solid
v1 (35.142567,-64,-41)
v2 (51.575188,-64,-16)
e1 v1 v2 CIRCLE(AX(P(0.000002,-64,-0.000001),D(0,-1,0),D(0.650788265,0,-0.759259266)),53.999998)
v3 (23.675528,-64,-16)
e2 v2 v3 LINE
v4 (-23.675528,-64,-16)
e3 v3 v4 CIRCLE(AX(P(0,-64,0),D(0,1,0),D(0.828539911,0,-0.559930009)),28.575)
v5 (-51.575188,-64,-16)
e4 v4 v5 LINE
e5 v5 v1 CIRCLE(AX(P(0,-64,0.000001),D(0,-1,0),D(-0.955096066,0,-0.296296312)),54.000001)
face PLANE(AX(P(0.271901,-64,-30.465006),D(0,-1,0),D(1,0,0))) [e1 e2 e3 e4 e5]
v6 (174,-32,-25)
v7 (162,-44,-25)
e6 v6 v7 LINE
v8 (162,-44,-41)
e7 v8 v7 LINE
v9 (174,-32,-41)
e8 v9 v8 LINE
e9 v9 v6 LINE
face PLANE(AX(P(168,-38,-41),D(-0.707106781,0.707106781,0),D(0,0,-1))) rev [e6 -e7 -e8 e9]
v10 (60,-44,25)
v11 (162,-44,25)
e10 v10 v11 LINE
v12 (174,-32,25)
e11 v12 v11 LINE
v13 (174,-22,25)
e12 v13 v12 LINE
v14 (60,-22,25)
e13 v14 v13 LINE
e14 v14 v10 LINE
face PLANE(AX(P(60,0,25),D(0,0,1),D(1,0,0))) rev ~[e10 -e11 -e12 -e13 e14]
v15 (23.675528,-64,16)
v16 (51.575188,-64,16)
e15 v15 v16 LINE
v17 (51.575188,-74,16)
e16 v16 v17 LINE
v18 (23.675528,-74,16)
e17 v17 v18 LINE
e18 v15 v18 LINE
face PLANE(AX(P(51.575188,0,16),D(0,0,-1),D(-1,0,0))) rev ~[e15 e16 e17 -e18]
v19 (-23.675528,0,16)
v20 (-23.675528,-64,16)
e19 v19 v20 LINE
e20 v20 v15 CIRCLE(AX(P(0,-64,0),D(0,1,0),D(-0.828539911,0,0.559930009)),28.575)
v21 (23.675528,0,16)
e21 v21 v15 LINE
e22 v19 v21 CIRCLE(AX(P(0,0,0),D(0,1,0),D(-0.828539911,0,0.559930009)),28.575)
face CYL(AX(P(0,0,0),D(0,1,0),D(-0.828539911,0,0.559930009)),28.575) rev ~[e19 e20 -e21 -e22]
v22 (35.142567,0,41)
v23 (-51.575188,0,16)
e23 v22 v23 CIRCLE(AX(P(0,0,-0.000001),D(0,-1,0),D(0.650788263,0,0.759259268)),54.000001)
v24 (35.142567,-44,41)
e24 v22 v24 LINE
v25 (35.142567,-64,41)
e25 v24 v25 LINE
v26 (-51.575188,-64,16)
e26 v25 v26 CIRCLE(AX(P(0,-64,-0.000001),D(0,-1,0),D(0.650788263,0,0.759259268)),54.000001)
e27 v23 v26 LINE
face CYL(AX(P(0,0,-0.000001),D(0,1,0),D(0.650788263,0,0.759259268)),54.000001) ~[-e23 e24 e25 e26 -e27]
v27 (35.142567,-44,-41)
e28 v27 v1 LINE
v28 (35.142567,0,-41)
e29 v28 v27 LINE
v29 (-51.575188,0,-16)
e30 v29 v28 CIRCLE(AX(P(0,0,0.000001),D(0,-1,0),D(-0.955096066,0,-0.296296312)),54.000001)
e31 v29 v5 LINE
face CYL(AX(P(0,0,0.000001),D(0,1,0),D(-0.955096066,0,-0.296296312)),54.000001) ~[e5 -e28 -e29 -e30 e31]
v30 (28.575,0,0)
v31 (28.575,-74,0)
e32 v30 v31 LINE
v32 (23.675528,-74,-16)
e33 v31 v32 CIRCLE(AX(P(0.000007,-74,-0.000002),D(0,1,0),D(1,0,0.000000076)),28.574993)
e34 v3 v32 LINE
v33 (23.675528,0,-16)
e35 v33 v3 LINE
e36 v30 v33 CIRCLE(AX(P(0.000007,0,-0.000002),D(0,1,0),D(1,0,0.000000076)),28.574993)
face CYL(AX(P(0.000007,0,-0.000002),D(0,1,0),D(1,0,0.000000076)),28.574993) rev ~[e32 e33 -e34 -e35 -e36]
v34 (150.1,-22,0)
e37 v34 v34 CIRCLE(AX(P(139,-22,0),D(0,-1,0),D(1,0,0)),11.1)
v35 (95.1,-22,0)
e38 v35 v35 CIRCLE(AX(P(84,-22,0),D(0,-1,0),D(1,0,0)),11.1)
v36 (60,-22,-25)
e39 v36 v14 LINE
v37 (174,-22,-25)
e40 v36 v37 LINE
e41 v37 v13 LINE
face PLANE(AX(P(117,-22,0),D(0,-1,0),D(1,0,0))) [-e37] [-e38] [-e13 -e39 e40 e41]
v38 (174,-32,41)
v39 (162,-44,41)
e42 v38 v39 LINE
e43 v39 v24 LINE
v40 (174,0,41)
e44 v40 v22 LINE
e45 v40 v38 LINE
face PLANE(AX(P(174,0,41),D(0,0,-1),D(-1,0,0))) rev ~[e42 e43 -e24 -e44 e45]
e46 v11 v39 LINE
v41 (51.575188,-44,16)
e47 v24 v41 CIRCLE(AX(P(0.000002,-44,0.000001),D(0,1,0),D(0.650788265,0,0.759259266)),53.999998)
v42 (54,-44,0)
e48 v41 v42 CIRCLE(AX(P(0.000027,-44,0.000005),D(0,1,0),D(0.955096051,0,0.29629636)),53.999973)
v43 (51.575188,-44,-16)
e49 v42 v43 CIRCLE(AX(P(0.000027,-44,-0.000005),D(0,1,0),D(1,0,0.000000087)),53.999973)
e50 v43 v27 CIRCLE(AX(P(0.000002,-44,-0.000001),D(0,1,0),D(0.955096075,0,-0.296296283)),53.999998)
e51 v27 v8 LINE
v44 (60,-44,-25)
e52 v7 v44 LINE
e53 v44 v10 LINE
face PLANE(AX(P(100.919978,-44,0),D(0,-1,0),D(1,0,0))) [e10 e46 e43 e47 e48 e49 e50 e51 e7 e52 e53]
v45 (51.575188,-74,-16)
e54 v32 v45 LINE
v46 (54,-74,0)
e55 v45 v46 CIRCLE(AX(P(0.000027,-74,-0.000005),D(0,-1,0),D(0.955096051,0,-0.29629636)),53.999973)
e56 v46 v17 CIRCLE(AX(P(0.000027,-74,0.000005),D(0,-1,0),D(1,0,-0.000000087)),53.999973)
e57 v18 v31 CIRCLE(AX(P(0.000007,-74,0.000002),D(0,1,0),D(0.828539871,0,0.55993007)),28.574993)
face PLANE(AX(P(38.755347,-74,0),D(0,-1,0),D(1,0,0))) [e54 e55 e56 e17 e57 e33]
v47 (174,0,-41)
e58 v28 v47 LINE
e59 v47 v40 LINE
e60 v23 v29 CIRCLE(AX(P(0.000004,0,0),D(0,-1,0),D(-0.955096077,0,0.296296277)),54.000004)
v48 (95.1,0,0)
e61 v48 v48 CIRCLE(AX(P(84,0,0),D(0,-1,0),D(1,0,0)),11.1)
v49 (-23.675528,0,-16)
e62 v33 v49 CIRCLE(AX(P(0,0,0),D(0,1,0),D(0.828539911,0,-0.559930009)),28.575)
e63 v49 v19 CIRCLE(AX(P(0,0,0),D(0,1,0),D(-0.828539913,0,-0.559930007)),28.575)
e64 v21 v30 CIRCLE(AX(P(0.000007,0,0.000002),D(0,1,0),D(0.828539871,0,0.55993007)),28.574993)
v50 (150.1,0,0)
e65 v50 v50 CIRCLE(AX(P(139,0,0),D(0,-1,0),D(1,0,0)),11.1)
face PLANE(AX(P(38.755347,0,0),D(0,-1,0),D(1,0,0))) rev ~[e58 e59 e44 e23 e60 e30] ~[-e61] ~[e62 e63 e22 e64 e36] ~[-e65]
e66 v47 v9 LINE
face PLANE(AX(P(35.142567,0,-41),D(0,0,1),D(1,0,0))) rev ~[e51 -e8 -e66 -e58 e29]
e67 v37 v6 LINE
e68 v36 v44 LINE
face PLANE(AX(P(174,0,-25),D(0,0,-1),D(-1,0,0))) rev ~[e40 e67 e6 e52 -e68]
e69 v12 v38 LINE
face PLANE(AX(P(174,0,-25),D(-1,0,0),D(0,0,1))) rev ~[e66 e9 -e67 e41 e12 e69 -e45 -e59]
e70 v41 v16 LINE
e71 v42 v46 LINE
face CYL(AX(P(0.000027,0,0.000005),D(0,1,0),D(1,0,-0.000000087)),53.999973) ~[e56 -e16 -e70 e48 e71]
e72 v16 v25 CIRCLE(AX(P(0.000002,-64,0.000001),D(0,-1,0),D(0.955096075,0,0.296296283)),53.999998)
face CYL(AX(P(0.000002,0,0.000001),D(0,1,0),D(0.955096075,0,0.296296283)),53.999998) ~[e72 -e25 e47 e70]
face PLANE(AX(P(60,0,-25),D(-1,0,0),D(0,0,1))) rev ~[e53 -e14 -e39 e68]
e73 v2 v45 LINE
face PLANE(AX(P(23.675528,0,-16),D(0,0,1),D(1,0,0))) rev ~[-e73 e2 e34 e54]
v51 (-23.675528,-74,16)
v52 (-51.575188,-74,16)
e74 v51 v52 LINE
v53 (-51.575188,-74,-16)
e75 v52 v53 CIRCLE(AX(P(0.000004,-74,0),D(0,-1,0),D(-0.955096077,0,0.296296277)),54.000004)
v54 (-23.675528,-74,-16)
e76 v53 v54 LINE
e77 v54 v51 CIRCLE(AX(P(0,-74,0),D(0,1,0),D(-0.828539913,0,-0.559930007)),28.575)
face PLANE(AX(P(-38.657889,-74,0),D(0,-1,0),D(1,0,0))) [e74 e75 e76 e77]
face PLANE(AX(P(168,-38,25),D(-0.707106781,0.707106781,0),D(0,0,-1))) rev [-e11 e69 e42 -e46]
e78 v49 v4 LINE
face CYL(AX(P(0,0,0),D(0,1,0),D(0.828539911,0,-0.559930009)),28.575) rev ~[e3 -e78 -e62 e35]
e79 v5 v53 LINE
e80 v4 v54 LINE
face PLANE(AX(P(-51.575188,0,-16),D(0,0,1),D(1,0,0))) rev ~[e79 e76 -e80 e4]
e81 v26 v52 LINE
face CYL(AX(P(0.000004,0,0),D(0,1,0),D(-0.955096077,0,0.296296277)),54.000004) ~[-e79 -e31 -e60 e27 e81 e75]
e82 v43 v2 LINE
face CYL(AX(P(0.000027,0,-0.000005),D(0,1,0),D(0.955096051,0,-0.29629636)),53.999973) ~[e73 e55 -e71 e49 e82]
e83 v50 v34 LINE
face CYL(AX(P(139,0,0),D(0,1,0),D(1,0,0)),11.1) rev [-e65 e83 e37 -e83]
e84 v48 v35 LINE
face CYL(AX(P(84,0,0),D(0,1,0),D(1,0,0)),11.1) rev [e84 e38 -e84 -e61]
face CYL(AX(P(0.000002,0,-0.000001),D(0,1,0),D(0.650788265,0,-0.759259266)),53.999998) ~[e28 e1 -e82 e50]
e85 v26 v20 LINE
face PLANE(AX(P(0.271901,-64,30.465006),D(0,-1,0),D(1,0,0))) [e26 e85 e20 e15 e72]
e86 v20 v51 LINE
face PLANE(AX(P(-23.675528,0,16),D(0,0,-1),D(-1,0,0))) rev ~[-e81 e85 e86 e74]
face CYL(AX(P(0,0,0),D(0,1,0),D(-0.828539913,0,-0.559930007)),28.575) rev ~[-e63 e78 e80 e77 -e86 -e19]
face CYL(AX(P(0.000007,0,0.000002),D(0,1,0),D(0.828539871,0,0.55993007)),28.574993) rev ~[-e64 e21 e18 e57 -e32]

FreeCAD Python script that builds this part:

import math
import FreeCAD as App
import Part
import Sketcher
from FreeCAD import Vector


def edges_at(feature, points):
    """Names of the edges that pass closest to the given points."""
    edges = feature.Shape.Edges
    near = lambda p: min(range(len(edges)), key=lambda i: edges[i].distToShape(Part.Vertex(*p))[0])
    return sorted({f"Edge{near(p) + 1}" for p in points})

doc = App.newDocument("Part")
body = doc.addObject("PartDesign::Body", "Body")

# Sketch on XZ plane
sketch1 = body.newObject("Sketcher::SketchObject", "Sketch")
sketch1.AttachmentSupport = (doc.getObject("XZ_Plane"), [""])
sketch1.MapMode = "FlatFace"
sketch1.addGeometry([
    Part.ArcOfCircle(Part.Circle(Vector(0.000002, 0.000001, 0), Vector(0, 0, 1), 53.999998), math.radians(17.235284), math.radians(49.39894)),  # 0
    Part.ArcOfCircle(Part.Circle(Vector(0.000027, 0.000005, 0), Vector(0, 0, 1), 53.999973), math.radians(-0.000005), math.radians(17.235289)),  # 1
    Part.ArcOfCircle(Part.Circle(Vector(0.000027, -0.000005, 0), Vector(0, 0, 1), 53.999973), math.radians(-17.235289), math.radians(0.000005)),  # 2
    Part.ArcOfCircle(Part.Circle(Vector(0.000002, -0.000001, 0), Vector(0, 0, 1), 53.999998), math.radians(-49.39894), math.radians(-17.235284)),  # 3
    Part.LineSegment(Vector(35.142567, -41, 0), Vector(174, -41, 0)),  # 4
    Part.LineSegment(Vector(174, -41, 0), Vector(174, -25, 0)),  # 5
    Part.LineSegment(Vector(174, -25, 0), Vector(60, -25, 0)),  # 6
    Part.LineSegment(Vector(60, -25, 0), Vector(60, 25, 0)),  # 7
    Part.LineSegment(Vector(60, 25, 0), Vector(174, 25, 0)),  # 8
    Part.LineSegment(Vector(174, 25, 0), Vector(174, 41, 0)),  # 9
    Part.LineSegment(Vector(174, 41, 0), Vector(35.142567, 41, 0)),  # 10
], False)
sketch1.addConstraint([
    Sketcher.Constraint("Coincident", 0, 1, 1, 2),
    Sketcher.Constraint("Coincident", 1, 1, 2, 2),
    Sketcher.Constraint("Coincident", 2, 1, 3, 2),
    Sketcher.Constraint("Coincident", 3, 1, 4, 1),
    Sketcher.Constraint("Coincident", 4, 2, 5, 1),
    Sketcher.Constraint("Coincident", 5, 2, 6, 1),
    Sketcher.Constraint("Coincident", 6, 2, 7, 1),
    Sketcher.Constraint("Coincident", 7, 2, 8, 1),
    Sketcher.Constraint("Coincident", 8, 2, 9, 1),
    Sketcher.Constraint("Coincident", 9, 2, 10, 1),
    Sketcher.Constraint("Coincident", 10, 2, 0, 2),
    Sketcher.Constraint("Horizontal", 4),
    Sketcher.Constraint("Vertical", 5),
    Sketcher.Constraint("Horizontal", 6),
    Sketcher.Constraint("Vertical", 7),
    Sketcher.Constraint("Horizontal", 8),
    Sketcher.Constraint("Vertical", 9),
    Sketcher.Constraint("Horizontal", 10),
    Sketcher.Constraint("Coincident", 0, 3, -1, 1),
    Sketcher.Constraint("Coincident", 3, 3, -1, 1),
    Sketcher.Constraint("Coincident", 2, 3, 1, 3),
    Sketcher.Constraint("PointOnObject", 1, 1, -1),
    Sketcher.Constraint("DistanceX", 6, 2, 6, 1, 114.0),
    Sketcher.Constraint("DistanceX", 8, 1, 8, 2, 114.0),
    Sketcher.Constraint("DistanceY", 5, 1, 5, 2, 16.0),
    Sketcher.Constraint("DistanceY", 7, 1, 7, 2, 50.0),
    Sketcher.Constraint("DistanceY", 9, 1, 9, 2, 16.0),
    Sketcher.Constraint("DistanceY", -1, 1, 0, 1, 16.0),
    Sketcher.Constraint("DistanceX", -1, 1, 1, 1, 54.0),
    Sketcher.Constraint("DistanceY", 2, 1, -1, 1, 16.0),
    Sketcher.Constraint("DistanceY", 3, 1, -1, 1, 41.0),
    Sketcher.Constraint("DistanceX", -1, 1, 4, 2, 174.0),
    Sketcher.Constraint("Radius", 0, 53.999998),
    Sketcher.Constraint("Radius", 1, 53.999973),
])
pad1 = body.newObject("PartDesign::Pad", "Pad")
pad1.Profile = sketch1
pad1.Length = 44

# Sketch on XZ plane
sketch2 = body.newObject("Sketcher::SketchObject", "Sketch001")
sketch2.AttachmentSupport = (doc.getObject("XZ_Plane"), [""])
sketch2.MapMode = "FlatFace"
sketch2.addGeometry([
    Part.LineSegment(Vector(60, 25, 0), Vector(60, -25, 0)),  # 0
    Part.LineSegment(Vector(60, -25, 0), Vector(174, -25, 0)),  # 1
    Part.LineSegment(Vector(174, -25, 0), Vector(174, 25, 0)),  # 2
    Part.LineSegment(Vector(174, 25, 0), Vector(60, 25, 0)),  # 3
    Part.Circle(Vector(84, 0, 0), Vector(0, 0, 1), 11),  # 4
    Part.Circle(Vector(139, 0, 0), Vector(0, 0, 1), 11),  # 5
], False)
sketch2.addConstraint([
    Sketcher.Constraint("Coincident", 0, 2, 1, 1),
    Sketcher.Constraint("Coincident", 1, 2, 2, 1),
    Sketcher.Constraint("Coincident", 2, 2, 3, 1),
    Sketcher.Constraint("Coincident", 3, 2, 0, 1),
    Sketcher.Constraint("Vertical", 0),
    Sketcher.Constraint("Horizontal", 1),
    Sketcher.Constraint("Vertical", 2),
    Sketcher.Constraint("Horizontal", 3),
    Sketcher.Constraint("Equal", 4, 5),
    Sketcher.Constraint("PointOnObject", 4, 3, -1),
    Sketcher.Constraint("PointOnObject", 5, 3, -1),
    Sketcher.Constraint("Diameter", 4, 22.2),
    Sketcher.Constraint("DistanceX", 1, 1, 1, 2, 114.0),
    Sketcher.Constraint("DistanceY", 0, 2, 0, 1, 50.0),
    Sketcher.Constraint("DistanceX", -1, 1, 4, 3, 84.0),
    Sketcher.Constraint("DistanceX", -1, 1, 5, 3, 139.0),
    Sketcher.Constraint("DistanceX", -1, 1, 0, 2, 60.0),
    Sketcher.Constraint("DistanceY", 0, 2, -1, 1, 25.0),
])
pad2 = body.newObject("PartDesign::Pad", "Pad001")
pad2.Profile = sketch2
pad2.Length = 22

# Sketch on XZ plane
sketch3 = body.newObject("Sketcher::SketchObject", "Sketch002")
sketch3.AttachmentSupport = (doc.getObject("XZ_Plane"), [""])
sketch3.MapMode = "FlatFace"
sketch3.addGeometry([
    Part.ArcOfCircle(Part.Circle(Vector(0, 0, 0), Vector(0, 0, 1), 29), math.radians(34), math.radians(146)),  # 0
    Part.LineSegment(Vector(24, 16, 0), Vector(52, 16, 0)),  # 1
    Part.ArcOfCircle(Part.Circle(Vector(0, 0, 0), Vector(0, 0, 1), 54), math.radians(17), math.radians(49)),  # 2
    Part.ArcOfCircle(Part.Circle(Vector(0, 0, 0), Vector(0, 0, 1), 54), math.radians(49), math.radians(163)),  # 3
    Part.LineSegment(Vector(-52, 16, 0), Vector(-24, 16, 0)),  # 4
    Part.LineSegment(Vector(52, -16, 0), Vector(24, -16, 0)),  # 5
    Part.ArcOfCircle(Part.Circle(Vector(0, 0, 0), Vector(0, 0, 1), 29), math.radians(-146), math.radians(-34)),  # 6
    Part.LineSegment(Vector(-24, -16, 0), Vector(-52, -16, 0)),  # 7
    Part.ArcOfCircle(Part.Circle(Vector(0, 0, 0), Vector(0, 0, 1), 54), math.radians(-163), math.radians(-49)),  # 8
    Part.ArcOfCircle(Part.Circle(Vector(0, 0, 0), Vector(0, 0, 1), 54), math.radians(-49), math.radians(-17)),  # 9
], False)
sketch3.addConstraint([
    Sketcher.Constraint("Coincident", 0, 1, 1, 1),
    Sketcher.Constraint("Coincident", 1, 2, 2, 1),
    Sketcher.Constraint("Tangent", 2, 2, 3, 1),
    Sketcher.Constraint("Coincident", 3, 2, 4, 1),
    Sketcher.Constraint("Coincident", 4, 2, 0, 2),
    Sketcher.Constraint("Coincident", 5, 2, 6, 2),
    Sketcher.Constraint("Coincident", 6, 1, 7, 1),
    Sketcher.Constraint("Coincident", 7, 2, 8, 1),
    Sketcher.Constraint("Tangent", 8, 2, 9, 1),
    Sketcher.Constraint("Coincident", 9, 2, 5, 1),
    Sketcher.Constraint("Horizontal", 1),
    Sketcher.Constraint("Horizontal", 4),
    Sketcher.Constraint("Horizontal", 5),
    Sketcher.Constraint("Horizontal", 7),
    Sketcher.Constraint("Coincident", 0, 3, -1, 1),
    Sketcher.Constraint("Coincident", 2, 3, -1, 1),
    Sketcher.Constraint("Coincident", 6, 3, -1, 1),
    Sketcher.Constraint("Coincident", 8, 3, -1, 1),
    Sketcher.Constraint("Equal", 0, 6),
    Sketcher.Constraint("Equal", 3, 8),
    Sketcher.Constraint("Equal", 2, 9),
    Sketcher.Constraint("Symmetric", 1, 2, 7, 2, -1, 1),
    Sketcher.Constraint("Horizontal", 1, 2, 3, 2),
    Sketcher.Constraint("Horizontal", 5, 2, 6, 1),
    Sketcher.Constraint("Vertical", 2, 2, 8, 2),
    Sketcher.Constraint("Radius", 3, 54.000001),
    Sketcher.Constraint("DistanceY", -1, 1, 0, 1, 16.0),
    Sketcher.Constraint("DistanceY", -1, 1, 2, 2, 41.0),
    Sketcher.Constraint("Radius", 0, 28.575),
])
pad3 = body.newObject("PartDesign::Pad", "Pad002")
pad3.Profile = sketch3
pad3.Length = 64

# Sketch on XZ plane
sketch4 = body.newObject("Sketcher::SketchObject", "Sketch003")
sketch4.AttachmentSupport = (doc.getObject("XZ_Plane"), [""])
sketch4.MapMode = "FlatFace"
sketch4.addGeometry([
    Part.ArcOfCircle(Part.Circle(Vector(0, 0, 0), Vector(0, 0, 1), 29), math.radians(0), math.radians(34)),  # 0
    Part.ArcOfCircle(Part.Circle(Vector(0, 0, 0), Vector(0, 0, 1), 29), math.radians(-34), math.radians(0)),  # 1
    Part.LineSegment(Vector(24, -16, 0), Vector(52, -16, 0)),  # 2
    Part.ArcOfCircle(Part.Circle(Vector(0, 0, 0), Vector(0, 0, 1), 54), math.radians(-17.24), math.radians(0)),  # 3
    Part.ArcOfCircle(Part.Circle(Vector(0, 0, 0), Vector(0, 0, 1), 54), math.radians(0), math.radians(17.24)),  # 4
    Part.LineSegment(Vector(52, 16, 0), Vector(24, 16, 0)),  # 5
    Part.ArcOfCircle(Part.Circle(Vector(0, 0, 0), Vector(0, 0, 1), 29), math.radians(146), math.radians(214)),  # 6
    Part.LineSegment(Vector(-24, 16, 0), Vector(-52, 16, 0)),  # 7
    Part.ArcOfCircle(Part.Circle(Vector(0, 0, 0), Vector(0, 0, 1), 54), math.radians(163), math.radians(197)),  # 8
    Part.LineSegment(Vector(-52, -16, 0), Vector(-24, -16, 0)),  # 9
], False)
sketch4.addConstraint([
    Sketcher.Constraint("Tangent", 0, 1, 1, 2),
    Sketcher.Constraint("Coincident", 1, 1, 2, 1),
    Sketcher.Constraint("Coincident", 2, 2, 3, 1),
    Sketcher.Constraint("Tangent", 3, 2, 4, 1),
    Sketcher.Constraint("Coincident", 4, 2, 5, 1),
    Sketcher.Constraint("Coincident", 5, 2, 0, 2),
    Sketcher.Constraint("Coincident", 6, 1, 7, 1),
    Sketcher.Constraint("Coincident", 7, 2, 8, 1),
    Sketcher.Constraint("Coincident", 8, 2, 9, 1),
    Sketcher.Constraint("Coincident", 9, 2, 6, 2),
    Sketcher.Constraint("Horizontal", 2),
    Sketcher.Constraint("Horizontal", 5),
    Sketcher.Constraint("Horizontal", 7),
    Sketcher.Constraint("Horizontal", 9),
    Sketcher.Constraint("Coincident", 0, 3, -1, 1),
    Sketcher.Constraint("Coincident", 6, 3, -1, 1),
    Sketcher.Constraint("Coincident", 8, 3, -1, 1),
    Sketcher.Constraint("Equal", 0, 1),
    Sketcher.Constraint("Equal", 3, 4),
    Sketcher.Constraint("Symmetric", 1, 1, 6, 1, -1, 1),
    Sketcher.Constraint("Symmetric", 4, 2, 8, 2, -1, 1),
    Sketcher.Constraint("Symmetric", 2, 2, 8, 2, -2),
    Sketcher.Constraint("PointOnObject", 0, 1, -1),
    Sketcher.Constraint("PointOnObject", 3, 2, -1),
    Sketcher.Constraint("DistanceY", 1, 1, -1, 1, 16.0),
    Sketcher.Constraint("DistanceX", -1, 1, 3, 2, 54.0),
    Sketcher.Constraint("Radius", 6, 28.575),
    Sketcher.Constraint("Radius", 3, 53.999973),
])
pad4 = body.newObject("PartDesign::Pad", "Pad003")
pad4.Profile = sketch4
pad4.Length = 74
doc.recompute()

chamfer = body.newObject("PartDesign::Chamfer", "Chamfer")
chamfer.Base = (pad4, edges_at(pad4, [(174, -44, -33), (174, -44, 33)]))
chamfer.ChamferType = "Two distances"
chamfer.Size = 12
chamfer.Size2 = 12

doc.recompute()
